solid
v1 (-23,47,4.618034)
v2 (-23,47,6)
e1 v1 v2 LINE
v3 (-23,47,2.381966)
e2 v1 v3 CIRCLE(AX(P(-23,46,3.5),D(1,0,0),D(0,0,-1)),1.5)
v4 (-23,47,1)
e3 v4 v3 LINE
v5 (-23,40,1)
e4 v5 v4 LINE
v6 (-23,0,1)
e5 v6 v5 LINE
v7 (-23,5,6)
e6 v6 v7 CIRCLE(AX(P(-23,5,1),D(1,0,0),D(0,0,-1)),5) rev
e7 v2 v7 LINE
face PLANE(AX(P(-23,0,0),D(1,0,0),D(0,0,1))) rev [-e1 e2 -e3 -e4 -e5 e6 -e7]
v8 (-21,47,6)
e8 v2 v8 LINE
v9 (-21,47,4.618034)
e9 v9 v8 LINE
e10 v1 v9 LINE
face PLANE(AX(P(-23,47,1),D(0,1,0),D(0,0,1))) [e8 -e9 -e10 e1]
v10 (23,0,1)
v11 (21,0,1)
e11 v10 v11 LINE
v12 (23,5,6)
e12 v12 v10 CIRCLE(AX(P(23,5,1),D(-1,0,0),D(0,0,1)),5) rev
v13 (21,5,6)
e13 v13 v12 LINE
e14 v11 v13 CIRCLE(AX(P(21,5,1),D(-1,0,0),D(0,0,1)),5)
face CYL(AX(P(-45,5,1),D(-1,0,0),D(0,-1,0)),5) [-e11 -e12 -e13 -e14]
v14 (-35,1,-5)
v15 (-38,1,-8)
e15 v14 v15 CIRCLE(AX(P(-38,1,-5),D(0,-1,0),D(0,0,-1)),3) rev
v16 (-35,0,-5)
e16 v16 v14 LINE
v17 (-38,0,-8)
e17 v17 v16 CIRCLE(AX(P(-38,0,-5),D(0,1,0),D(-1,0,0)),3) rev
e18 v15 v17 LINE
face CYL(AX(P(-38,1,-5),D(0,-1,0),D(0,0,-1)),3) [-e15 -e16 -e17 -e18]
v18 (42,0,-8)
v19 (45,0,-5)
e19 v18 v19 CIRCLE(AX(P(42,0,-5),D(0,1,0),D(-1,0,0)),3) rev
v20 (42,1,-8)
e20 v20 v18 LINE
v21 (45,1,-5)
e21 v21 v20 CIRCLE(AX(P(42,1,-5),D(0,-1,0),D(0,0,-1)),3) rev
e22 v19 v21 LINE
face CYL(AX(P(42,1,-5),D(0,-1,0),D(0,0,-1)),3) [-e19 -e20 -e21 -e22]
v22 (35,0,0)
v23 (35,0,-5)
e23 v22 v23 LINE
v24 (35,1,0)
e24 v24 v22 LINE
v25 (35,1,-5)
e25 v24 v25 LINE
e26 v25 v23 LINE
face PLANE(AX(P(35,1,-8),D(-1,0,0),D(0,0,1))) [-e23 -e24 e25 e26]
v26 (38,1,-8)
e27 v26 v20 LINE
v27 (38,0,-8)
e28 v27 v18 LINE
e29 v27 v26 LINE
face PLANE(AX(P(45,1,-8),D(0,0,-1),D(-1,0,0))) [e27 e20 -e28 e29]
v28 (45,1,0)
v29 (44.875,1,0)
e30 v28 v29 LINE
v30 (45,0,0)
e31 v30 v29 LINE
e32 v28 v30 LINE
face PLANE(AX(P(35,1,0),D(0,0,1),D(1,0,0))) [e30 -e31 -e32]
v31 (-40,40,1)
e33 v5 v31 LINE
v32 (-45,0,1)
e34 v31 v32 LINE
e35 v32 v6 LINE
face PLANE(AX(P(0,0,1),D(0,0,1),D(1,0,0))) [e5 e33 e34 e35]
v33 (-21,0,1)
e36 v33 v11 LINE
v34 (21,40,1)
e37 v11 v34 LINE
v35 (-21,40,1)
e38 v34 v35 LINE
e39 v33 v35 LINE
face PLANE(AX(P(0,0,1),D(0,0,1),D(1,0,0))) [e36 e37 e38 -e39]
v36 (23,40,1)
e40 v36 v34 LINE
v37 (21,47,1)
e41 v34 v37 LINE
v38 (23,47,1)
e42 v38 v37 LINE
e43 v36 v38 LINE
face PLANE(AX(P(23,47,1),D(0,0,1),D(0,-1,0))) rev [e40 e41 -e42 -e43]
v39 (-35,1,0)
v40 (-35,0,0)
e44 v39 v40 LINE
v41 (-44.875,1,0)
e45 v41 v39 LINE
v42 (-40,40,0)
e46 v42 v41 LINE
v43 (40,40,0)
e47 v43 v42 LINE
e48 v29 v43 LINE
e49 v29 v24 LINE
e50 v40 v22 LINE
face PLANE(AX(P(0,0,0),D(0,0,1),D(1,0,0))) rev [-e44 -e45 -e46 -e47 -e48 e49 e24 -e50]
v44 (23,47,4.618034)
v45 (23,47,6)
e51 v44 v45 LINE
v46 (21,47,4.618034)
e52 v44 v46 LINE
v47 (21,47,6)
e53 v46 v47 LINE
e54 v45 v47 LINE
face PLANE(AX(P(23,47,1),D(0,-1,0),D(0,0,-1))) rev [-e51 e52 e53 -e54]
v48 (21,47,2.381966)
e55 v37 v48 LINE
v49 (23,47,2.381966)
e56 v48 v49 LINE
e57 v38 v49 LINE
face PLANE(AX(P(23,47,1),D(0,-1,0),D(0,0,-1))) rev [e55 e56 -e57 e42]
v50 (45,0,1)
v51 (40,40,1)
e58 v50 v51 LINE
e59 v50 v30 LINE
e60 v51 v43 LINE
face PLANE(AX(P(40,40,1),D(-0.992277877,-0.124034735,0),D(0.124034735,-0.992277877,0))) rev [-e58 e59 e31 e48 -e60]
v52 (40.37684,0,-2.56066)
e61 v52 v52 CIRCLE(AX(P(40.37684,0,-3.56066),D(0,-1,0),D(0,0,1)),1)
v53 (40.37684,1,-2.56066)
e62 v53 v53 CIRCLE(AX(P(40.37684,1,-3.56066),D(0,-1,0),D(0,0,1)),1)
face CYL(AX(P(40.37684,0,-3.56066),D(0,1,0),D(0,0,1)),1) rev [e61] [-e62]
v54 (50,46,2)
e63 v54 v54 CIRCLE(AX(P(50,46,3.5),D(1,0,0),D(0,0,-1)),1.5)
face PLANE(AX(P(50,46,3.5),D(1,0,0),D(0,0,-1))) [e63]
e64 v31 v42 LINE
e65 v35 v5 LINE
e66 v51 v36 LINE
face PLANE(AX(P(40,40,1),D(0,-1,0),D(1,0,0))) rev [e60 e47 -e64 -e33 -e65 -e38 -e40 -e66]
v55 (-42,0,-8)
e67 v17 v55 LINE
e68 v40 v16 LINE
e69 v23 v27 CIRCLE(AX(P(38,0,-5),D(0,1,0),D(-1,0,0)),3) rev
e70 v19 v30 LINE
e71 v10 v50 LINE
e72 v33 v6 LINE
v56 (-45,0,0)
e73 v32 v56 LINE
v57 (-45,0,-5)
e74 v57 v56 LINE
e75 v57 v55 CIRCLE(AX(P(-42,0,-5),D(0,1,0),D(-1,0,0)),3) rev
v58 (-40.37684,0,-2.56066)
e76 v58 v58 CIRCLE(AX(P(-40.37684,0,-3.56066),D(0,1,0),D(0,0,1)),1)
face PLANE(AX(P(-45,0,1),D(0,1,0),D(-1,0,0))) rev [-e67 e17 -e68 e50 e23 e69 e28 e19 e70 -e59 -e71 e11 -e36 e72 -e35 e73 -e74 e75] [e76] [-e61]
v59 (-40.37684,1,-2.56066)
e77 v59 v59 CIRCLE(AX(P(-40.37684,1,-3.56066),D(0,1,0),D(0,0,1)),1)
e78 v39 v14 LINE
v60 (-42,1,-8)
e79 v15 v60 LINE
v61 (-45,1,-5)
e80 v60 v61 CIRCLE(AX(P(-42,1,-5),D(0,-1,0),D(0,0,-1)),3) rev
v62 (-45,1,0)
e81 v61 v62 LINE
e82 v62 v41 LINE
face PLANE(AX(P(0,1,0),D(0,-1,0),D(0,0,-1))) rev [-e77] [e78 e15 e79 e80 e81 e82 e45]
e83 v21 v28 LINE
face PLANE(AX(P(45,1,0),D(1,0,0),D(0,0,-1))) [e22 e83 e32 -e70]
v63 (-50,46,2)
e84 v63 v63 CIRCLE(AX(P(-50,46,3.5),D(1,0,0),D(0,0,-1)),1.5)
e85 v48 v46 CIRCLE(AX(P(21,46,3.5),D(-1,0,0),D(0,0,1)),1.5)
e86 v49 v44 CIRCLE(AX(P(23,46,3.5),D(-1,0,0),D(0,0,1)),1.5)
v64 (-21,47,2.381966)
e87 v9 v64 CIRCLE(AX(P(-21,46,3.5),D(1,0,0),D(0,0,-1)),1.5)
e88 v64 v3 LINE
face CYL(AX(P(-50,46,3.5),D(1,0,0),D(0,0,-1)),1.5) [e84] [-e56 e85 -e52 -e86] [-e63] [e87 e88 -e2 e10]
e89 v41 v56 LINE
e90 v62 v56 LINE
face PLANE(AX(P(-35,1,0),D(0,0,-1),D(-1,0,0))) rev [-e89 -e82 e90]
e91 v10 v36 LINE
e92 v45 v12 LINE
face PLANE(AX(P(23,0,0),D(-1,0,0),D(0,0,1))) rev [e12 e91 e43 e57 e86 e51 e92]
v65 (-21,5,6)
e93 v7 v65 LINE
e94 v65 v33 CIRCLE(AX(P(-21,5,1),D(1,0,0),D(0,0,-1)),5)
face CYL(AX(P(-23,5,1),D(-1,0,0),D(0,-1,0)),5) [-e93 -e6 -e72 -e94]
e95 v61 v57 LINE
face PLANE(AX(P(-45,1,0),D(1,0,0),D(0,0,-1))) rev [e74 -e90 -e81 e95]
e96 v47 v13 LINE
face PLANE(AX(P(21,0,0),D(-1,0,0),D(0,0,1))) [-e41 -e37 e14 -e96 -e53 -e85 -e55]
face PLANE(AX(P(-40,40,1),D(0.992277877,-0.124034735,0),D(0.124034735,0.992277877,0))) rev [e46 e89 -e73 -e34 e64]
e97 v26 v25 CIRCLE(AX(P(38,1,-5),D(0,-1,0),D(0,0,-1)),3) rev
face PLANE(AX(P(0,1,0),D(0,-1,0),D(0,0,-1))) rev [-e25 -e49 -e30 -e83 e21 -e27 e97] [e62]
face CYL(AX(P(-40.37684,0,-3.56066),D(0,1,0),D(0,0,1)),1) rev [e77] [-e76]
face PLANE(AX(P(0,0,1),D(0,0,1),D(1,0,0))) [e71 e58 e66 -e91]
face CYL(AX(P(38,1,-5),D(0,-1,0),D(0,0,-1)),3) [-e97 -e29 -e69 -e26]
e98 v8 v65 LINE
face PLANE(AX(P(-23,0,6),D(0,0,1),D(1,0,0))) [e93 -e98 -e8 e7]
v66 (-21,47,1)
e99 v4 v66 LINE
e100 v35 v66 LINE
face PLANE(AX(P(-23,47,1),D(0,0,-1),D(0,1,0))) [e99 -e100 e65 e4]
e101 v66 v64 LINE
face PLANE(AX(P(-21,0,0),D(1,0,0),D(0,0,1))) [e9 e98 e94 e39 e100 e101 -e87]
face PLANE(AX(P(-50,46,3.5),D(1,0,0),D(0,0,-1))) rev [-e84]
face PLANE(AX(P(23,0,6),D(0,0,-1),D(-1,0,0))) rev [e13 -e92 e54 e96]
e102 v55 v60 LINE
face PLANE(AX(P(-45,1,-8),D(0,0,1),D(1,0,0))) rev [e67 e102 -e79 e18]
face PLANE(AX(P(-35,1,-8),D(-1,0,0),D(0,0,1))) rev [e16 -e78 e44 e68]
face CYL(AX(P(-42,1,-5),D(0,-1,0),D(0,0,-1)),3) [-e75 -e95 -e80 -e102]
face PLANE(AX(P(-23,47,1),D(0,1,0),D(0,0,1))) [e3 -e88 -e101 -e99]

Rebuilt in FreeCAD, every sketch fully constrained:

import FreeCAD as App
import Part
import Sketcher
Q = App.Units.Quantity


def edges_at(feature, points):
    """Names of the edges that pass closest to the given points."""
    edges = feature.Shape.Edges
    near = lambda p: min(range(len(edges)), key=lambda i: edges[i].distToShape(Part.Vertex(*p))[0])
    return sorted({f"Edge{near(p) + 1}" for p in points})


def add_polygon(sketch, points):
    """Adds a closed chain of lines whose ends are joined by coincident constraints."""
    first, n = sketch.GeometryCount, len(points)
    for a, b in zip(points, points[1:] + points[:1]):
        sketch.addGeometry(Part.LineSegment(App.Vector(*a, 0), App.Vector(*b, 0)), False)
    for i in range(n):
        sketch.addConstraint(Sketcher.Constraint("Coincident", first + i, 2, first + (i + 1) % n, 1))

doc = App.newDocument("Part")
body = doc.addObject("PartDesign::Body", "Body")

# Sketch on XY plane
sketch1 = doc.addObject("Sketcher::SketchObject", "Sketch")
body.addObject(sketch1)
sketch1.AttachmentSupport = (doc.XY_Plane, [""])
sketch1.MapMode = "FlatFace"
add_polygon(sketch1, [(-45, 0), (45, 0), (40, 40), (-40, 40)])  # lines 0-3
sketch1.addConstraint([
    Sketcher.Constraint("Horizontal", 0),
    Sketcher.Constraint("Horizontal", 2),
    Sketcher.Constraint("Symmetric", 0, 2, 3, 2, -1, 1),
    Sketcher.Constraint("Equal", 1, 3),
    Sketcher.Constraint("DistanceX", 0, 1, 0, 2, Q("90 mm")),
    Sketcher.Constraint("DistanceX", 2, 2, 2, 1, Q("80 mm")),
    Sketcher.Constraint("DistanceY", -1, 1, 1, 2, Q("40 mm")),
])
pad1 = doc.addObject("PartDesign::Pad", "Pad")
body.addObject(pad1)
pad1.Profile = sketch1
pad1.Length = 1

# Sketch on YZ plane
sketch2 = doc.addObject("Sketcher::SketchObject", "Sketch001")
body.addObject(sketch2)
sketch2.AttachmentSupport = (doc.YZ_Plane, [""])
sketch2.MapMode = "FlatFace"
sketch2.AttachmentOffset = App.Placement(App.Vector(0, 0, 21), App.Rotation())
add_polygon(sketch2, [(47, 6), (0, 6), (0, 1), (47, 1)])  # lines 0-3
sketch2.addConstraint([
    Sketcher.Constraint("Horizontal", 0),
    Sketcher.Constraint("Vertical", 1),
    Sketcher.Constraint("Horizontal", 2),
    Sketcher.Constraint("Vertical", 3),
    Sketcher.Constraint("PointOnObject", 0, 2, -2),
    Sketcher.Constraint("DistanceX", 0, 2, 0, 1, Q("47 mm")),
    Sketcher.Constraint("DistanceY", 1, 2, 1, 1, Q("5 mm")),
    Sketcher.Constraint("DistanceY", -1, 1, 0, 2, Q("6 mm")),
])
pad2 = doc.addObject("PartDesign::Pad", "Pad001")
body.addObject(pad2)
pad2.Profile = sketch2
pad2.Length = 2
doc.recompute()

fillet = doc.addObject("PartDesign::Fillet", "Fillet")
body.addObject(fillet)
fillet.Base = (pad2, edges_at(pad2, [(22, 0, 6)]))
fillet.Radius = 5
doc.recompute()

mirrored = doc.addObject("PartDesign::Mirrored", "Mirrored")
body.addObject(mirrored)
mirrored.Originals = [pad2]
mirrored.MirrorPlane = (doc.YZ_Plane, [""])
body.Tip = mirrored
doc.recompute()

fillet2 = doc.addObject("PartDesign::Fillet", "Fillet001")
body.addObject(fillet2)
fillet2.Base = (mirrored, edges_at(mirrored, [(-22, 0, 6)]))
fillet2.Radius = 5

# Sketch on YZ plane
sketch3 = doc.addObject("Sketcher::SketchObject", "Sketch002")
body.addObject(sketch3)
sketch3.AttachmentSupport = (doc.YZ_Plane, [""])
sketch3.MapMode = "FlatFace"
sketch3.AttachmentOffset = App.Placement(App.Vector(0, 0, 50), App.Rotation())
sketch3.addGeometry(Part.Circle(App.Vector(46, 3.5, 0), App.Vector(0, 0, 1), 1.5), False)
sketch3.addConstraint([
    Sketcher.Constraint("Diameter", 0, Q("3 mm")),
    Sketcher.Constraint("DistanceX", -1, 1, 0, 3, Q("46 mm")),
    Sketcher.Constraint("DistanceY", -1, 1, 0, 3, Q("3.5 mm")),
])
pad3 = doc.addObject("PartDesign::Pad", "Pad002")
body.addObject(pad3)
pad3.Profile = sketch3
pad3.Length = 100
pad3.Reversed = True

# Sketch on XZ plane
sketch4 = doc.addObject("Sketcher::SketchObject", "Sketch003")
body.addObject(sketch4)
sketch4.AttachmentSupport = (doc.XZ_Plane, [""])
sketch4.MapMode = "FlatFace"
add_polygon(sketch4, [(-45, -8), (-45, 0), (-35, 0), (-35, -8)])  # lines 0-3
sketch4.addConstraint([
    Sketcher.Constraint("Vertical", 0),
    Sketcher.Constraint("Horizontal", 1),
    Sketcher.Constraint("Vertical", 2),
    Sketcher.Constraint("Horizontal", 3),
    Sketcher.Constraint("PointOnObject", 0, 2, -1),
    Sketcher.Constraint("DistanceX", 1, 1, 1, 2, Q("10 mm")),
    Sketcher.Constraint("DistanceY", 0, 1, 0, 2, Q("8 mm")),
    Sketcher.Constraint("DistanceX", 0, 2, -1, 1, Q("45 mm")),
])
pad4 = doc.addObject("PartDesign::Pad", "Pad003")
body.addObject(pad4)
pad4.Profile = sketch4
pad4.Length = 1
pad4.Reversed = True
doc.recompute()

fillet3 = doc.addObject("PartDesign::Fillet", "Fillet002")
body.addObject(fillet3)
fillet3.Base = (pad4, edges_at(pad4, [(-35, 0.5, -8), (-45, 0.5, -8)]))
fillet3.Radius = 3

# Sketch on XZ plane
sketch5 = doc.addObject("Sketcher::SketchObject", "Sketch004")
body.addObject(sketch5)
sketch5.AttachmentSupport = (doc.XZ_Plane, [""])
sketch5.MapMode = "FlatFace"
sketch5.AttachmentOffset = App.Placement(App.Vector(0, 0, -1), App.Rotation())
sketch5.addGeometry(Part.Circle(App.Vector(-40.37684, -3.56066, 0), App.Vector(0, 0, 1), 1), False)
sketch5.addConstraint([
    Sketcher.Constraint("Diameter", 0, Q("2 mm")),
    Sketcher.Constraint("DistanceX", 0, 3, -1, 1, Q("40.37684 mm")),
    Sketcher.Constraint("DistanceY", 0, 3, -1, 1, Q("3.56066 mm")),
])
pocket1 = doc.addObject("PartDesign::Pocket", "Pocket")
body.addObject(pocket1)
pocket1.Profile = sketch5
pocket1.Length = 1
pocket1.Reversed = True
doc.recompute()

mirrored2 = doc.addObject("PartDesign::Mirrored", "Mirrored001")
body.addObject(mirrored2)
mirrored2.Originals = [pad4, pocket1]
mirrored2.MirrorPlane = (doc.YZ_Plane, [""])
body.Tip = mirrored2
doc.recompute()

fillet4 = doc.addObject("PartDesign::Fillet", "Fillet003")
body.addObject(fillet4)
fillet4.Base = (mirrored2, edges_at(mirrored2, [(35, 0.5, -8), (45, 0.5, -8)]))
fillet4.Radius = 3

doc.recompute()
